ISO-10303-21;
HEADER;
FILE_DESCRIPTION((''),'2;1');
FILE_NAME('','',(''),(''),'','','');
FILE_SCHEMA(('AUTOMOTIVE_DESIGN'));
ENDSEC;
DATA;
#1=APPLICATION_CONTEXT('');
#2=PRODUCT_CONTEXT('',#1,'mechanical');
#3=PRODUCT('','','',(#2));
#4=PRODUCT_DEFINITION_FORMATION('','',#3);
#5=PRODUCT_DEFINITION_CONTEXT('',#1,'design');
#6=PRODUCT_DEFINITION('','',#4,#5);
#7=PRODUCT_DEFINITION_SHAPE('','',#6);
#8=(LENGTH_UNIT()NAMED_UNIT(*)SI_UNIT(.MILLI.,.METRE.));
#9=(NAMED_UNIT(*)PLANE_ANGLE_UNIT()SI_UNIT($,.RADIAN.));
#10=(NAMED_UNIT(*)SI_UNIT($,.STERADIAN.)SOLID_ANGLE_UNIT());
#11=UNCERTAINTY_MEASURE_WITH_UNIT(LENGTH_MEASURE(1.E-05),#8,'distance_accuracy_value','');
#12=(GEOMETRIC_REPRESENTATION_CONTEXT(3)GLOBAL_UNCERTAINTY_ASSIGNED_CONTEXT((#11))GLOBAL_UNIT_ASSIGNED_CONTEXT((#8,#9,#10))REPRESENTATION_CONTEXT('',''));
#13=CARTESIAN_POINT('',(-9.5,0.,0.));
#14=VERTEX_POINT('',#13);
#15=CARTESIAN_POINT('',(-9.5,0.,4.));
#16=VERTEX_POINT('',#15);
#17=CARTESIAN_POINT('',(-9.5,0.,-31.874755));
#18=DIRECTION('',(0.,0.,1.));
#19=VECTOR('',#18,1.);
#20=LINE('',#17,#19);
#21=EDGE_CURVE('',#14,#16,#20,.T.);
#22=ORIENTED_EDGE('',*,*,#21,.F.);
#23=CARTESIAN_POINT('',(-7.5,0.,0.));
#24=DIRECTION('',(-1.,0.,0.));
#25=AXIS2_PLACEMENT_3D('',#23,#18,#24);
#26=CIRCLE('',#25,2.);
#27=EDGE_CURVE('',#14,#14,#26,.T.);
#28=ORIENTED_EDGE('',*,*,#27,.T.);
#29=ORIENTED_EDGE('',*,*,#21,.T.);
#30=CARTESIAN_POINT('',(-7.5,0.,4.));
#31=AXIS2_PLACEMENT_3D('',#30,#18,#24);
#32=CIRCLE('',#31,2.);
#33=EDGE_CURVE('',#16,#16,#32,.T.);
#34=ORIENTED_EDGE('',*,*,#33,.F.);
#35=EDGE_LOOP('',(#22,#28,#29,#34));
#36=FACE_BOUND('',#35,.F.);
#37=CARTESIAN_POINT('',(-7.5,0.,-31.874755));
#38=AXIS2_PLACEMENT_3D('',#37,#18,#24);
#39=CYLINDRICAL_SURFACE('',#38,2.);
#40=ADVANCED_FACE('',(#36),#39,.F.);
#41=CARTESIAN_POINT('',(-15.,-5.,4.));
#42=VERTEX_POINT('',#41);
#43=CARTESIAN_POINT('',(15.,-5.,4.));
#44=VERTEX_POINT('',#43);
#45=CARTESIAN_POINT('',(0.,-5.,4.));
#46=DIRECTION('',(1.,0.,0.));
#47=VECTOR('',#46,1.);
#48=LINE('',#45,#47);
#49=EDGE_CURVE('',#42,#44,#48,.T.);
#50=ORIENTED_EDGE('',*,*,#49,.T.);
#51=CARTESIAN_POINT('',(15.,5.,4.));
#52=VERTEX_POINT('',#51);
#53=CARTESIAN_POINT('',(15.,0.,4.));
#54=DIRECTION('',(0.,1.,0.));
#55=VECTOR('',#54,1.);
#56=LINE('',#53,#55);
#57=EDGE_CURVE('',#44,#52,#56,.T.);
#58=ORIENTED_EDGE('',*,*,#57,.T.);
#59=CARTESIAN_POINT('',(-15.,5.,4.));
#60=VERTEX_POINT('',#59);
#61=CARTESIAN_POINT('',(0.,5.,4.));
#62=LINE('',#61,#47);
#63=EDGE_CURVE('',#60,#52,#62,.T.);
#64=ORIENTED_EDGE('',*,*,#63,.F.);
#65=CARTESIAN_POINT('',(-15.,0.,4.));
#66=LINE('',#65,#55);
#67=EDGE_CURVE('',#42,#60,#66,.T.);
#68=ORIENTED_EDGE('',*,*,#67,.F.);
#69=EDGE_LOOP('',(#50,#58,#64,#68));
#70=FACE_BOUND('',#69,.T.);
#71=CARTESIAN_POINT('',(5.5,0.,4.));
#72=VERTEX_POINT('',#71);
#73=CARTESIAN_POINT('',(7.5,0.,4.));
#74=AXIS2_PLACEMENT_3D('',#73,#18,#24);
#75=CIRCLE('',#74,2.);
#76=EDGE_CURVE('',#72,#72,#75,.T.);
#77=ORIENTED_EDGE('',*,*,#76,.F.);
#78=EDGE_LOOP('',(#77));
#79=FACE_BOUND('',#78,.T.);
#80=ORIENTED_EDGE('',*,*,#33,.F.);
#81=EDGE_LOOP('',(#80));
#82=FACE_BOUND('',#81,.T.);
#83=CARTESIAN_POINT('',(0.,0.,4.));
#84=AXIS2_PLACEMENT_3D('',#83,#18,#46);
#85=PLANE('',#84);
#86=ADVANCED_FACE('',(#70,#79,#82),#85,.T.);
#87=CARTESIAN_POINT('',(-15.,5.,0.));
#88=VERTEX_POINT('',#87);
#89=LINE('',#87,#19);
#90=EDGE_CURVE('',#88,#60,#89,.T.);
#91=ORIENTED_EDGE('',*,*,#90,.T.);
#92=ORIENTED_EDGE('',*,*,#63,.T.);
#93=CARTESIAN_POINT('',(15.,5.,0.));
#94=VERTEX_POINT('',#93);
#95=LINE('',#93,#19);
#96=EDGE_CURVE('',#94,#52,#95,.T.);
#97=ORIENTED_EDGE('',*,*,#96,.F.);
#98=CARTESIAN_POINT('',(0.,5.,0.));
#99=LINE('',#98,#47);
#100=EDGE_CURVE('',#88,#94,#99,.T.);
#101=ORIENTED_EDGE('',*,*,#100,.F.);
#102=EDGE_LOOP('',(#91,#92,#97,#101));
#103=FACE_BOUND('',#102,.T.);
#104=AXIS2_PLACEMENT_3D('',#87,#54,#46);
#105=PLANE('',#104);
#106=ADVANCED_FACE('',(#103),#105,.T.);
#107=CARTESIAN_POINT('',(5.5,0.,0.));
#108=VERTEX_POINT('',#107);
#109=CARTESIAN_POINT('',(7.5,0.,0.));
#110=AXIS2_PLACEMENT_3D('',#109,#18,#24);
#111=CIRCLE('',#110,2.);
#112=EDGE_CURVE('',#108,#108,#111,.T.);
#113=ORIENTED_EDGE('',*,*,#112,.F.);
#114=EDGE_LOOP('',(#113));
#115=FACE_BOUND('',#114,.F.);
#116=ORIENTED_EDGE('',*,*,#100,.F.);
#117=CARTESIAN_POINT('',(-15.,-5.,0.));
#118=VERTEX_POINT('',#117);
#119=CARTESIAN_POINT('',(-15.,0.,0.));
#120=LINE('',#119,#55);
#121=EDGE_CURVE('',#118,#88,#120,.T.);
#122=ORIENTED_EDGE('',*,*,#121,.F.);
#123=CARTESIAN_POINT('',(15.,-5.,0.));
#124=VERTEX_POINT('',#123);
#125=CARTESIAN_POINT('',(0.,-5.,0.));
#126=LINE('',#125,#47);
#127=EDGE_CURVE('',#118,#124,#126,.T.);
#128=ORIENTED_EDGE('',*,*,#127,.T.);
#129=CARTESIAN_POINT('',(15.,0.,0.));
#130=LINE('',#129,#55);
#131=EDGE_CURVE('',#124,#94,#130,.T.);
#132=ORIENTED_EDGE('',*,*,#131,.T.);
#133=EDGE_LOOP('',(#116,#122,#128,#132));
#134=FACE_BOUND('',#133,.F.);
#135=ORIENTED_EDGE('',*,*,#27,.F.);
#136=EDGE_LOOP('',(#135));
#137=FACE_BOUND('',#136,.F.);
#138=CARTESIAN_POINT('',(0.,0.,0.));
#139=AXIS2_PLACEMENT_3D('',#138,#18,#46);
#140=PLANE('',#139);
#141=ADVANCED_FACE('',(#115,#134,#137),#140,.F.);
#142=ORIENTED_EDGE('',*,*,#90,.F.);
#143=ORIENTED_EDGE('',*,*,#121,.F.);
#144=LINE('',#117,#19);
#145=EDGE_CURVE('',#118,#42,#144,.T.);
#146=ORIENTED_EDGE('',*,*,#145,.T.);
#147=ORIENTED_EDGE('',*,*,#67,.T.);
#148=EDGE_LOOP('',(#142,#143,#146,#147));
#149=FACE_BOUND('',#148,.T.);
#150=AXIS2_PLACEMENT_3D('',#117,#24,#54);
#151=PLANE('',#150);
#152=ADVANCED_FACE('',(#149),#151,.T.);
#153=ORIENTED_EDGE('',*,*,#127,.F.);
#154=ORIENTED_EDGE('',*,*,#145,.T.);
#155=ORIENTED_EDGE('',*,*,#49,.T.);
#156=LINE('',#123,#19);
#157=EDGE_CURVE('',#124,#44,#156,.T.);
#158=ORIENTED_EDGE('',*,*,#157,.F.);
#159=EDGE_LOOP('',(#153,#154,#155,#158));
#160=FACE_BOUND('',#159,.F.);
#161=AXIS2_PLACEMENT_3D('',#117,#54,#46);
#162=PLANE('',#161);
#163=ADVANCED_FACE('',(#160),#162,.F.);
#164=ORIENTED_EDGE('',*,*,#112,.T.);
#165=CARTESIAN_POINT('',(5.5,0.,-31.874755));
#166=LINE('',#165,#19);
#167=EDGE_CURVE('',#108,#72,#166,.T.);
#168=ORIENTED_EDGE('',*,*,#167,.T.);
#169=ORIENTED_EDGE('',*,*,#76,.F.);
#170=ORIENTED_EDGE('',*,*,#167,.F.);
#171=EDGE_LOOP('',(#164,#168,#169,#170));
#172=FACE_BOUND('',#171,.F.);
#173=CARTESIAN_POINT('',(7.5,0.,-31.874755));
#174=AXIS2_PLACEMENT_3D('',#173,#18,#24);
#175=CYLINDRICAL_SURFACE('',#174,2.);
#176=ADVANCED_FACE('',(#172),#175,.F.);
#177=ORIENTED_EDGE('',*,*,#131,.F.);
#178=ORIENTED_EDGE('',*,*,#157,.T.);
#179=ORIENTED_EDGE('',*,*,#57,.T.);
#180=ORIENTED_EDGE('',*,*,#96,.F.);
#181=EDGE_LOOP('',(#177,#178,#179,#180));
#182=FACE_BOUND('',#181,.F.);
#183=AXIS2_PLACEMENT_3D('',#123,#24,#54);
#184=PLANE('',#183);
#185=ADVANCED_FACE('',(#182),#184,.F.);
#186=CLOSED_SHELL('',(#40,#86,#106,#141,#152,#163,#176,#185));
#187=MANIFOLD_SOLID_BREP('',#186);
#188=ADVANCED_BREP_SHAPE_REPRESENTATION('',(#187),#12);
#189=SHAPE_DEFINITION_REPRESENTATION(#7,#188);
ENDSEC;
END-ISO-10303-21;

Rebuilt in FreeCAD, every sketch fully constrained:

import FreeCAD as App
import Part
import Sketcher

V = App.Vector

doc = App.newDocument("Part")
body = doc.addObject("PartDesign::Body", "Body")

sketch1 = body.newObject("Sketcher::SketchObject", "Sketch")
sketch1.AttachmentSupport = (doc.getObject("XY_Plane"), [""])
sketch1.MapMode = "FlatFace"
sketch1.addGeometry([
    Part.LineSegment(V(-15, 5, 0), V(-15, -5, 0)),
    Part.LineSegment(V(-15, -5, 0), V(15, -5, 0)),
    Part.LineSegment(V(15, -5, 0), V(15, 5, 0)),
    Part.LineSegment(V(15, 5, 0), V(-15, 5, 0)),
], False)
sketch1.addConstraint([
    Sketcher.Constraint("Coincident", 0, 2, 1, 1),
    Sketcher.Constraint("Coincident", 1, 2, 2, 1),
    Sketcher.Constraint("Coincident", 2, 2, 3, 1),
    Sketcher.Constraint("Coincident", 3, 2, 0, 1),
    Sketcher.Constraint("Vertical", 0),
    Sketcher.Constraint("Horizontal", 1),
    Sketcher.Constraint("Vertical", 2),
    Sketcher.Constraint("Horizontal", 3),
    Sketcher.Constraint("Symmetric", 0, 2, 2, 2, -1, 1),
    Sketcher.Constraint("DistanceX", 1, 1, 1, 2, 30.0),
    Sketcher.Constraint("DistanceY", 0, 2, 0, 1, 10.0),
])
pad1 = body.newObject("PartDesign::Pad", "Pad")
pad1.Profile = sketch1
pad1.Length = 4

sketch2 = body.newObject("Sketcher::SketchObject", "Sketch001")
sketch2.AttachmentSupport = (doc.getObject("XY_Plane"), [""])
sketch2.MapMode = "FlatFace"
sketch2.addGeometry([
    Part.Circle(V(-7.5, 0, 0), V(0, 0, 1), 2),
    Part.Circle(V(7.5, 0, 0), V(0, 0, 1), 2),
], False)
sketch2.addConstraint([
    Sketcher.Constraint("Equal", 0, 1),
    Sketcher.Constraint("Symmetric", 0, 3, 1, 3, -1, 1),
    Sketcher.Constraint("PointOnObject", 0, 3, -1),
    Sketcher.Constraint("Diameter", 0, 4.0),
    Sketcher.Constraint("DistanceX", 0, 3, 1, 3, 15.0),
])
doc.recompute()
hole = body.newObject("PartDesign::Hole", "Hole")
hole.Profile = sketch2
hole.ThreadType = "None"
hole.Diameter = 4
hole.DepthType = "ThroughAll"
hole.Reversed = True

doc.recompute()
